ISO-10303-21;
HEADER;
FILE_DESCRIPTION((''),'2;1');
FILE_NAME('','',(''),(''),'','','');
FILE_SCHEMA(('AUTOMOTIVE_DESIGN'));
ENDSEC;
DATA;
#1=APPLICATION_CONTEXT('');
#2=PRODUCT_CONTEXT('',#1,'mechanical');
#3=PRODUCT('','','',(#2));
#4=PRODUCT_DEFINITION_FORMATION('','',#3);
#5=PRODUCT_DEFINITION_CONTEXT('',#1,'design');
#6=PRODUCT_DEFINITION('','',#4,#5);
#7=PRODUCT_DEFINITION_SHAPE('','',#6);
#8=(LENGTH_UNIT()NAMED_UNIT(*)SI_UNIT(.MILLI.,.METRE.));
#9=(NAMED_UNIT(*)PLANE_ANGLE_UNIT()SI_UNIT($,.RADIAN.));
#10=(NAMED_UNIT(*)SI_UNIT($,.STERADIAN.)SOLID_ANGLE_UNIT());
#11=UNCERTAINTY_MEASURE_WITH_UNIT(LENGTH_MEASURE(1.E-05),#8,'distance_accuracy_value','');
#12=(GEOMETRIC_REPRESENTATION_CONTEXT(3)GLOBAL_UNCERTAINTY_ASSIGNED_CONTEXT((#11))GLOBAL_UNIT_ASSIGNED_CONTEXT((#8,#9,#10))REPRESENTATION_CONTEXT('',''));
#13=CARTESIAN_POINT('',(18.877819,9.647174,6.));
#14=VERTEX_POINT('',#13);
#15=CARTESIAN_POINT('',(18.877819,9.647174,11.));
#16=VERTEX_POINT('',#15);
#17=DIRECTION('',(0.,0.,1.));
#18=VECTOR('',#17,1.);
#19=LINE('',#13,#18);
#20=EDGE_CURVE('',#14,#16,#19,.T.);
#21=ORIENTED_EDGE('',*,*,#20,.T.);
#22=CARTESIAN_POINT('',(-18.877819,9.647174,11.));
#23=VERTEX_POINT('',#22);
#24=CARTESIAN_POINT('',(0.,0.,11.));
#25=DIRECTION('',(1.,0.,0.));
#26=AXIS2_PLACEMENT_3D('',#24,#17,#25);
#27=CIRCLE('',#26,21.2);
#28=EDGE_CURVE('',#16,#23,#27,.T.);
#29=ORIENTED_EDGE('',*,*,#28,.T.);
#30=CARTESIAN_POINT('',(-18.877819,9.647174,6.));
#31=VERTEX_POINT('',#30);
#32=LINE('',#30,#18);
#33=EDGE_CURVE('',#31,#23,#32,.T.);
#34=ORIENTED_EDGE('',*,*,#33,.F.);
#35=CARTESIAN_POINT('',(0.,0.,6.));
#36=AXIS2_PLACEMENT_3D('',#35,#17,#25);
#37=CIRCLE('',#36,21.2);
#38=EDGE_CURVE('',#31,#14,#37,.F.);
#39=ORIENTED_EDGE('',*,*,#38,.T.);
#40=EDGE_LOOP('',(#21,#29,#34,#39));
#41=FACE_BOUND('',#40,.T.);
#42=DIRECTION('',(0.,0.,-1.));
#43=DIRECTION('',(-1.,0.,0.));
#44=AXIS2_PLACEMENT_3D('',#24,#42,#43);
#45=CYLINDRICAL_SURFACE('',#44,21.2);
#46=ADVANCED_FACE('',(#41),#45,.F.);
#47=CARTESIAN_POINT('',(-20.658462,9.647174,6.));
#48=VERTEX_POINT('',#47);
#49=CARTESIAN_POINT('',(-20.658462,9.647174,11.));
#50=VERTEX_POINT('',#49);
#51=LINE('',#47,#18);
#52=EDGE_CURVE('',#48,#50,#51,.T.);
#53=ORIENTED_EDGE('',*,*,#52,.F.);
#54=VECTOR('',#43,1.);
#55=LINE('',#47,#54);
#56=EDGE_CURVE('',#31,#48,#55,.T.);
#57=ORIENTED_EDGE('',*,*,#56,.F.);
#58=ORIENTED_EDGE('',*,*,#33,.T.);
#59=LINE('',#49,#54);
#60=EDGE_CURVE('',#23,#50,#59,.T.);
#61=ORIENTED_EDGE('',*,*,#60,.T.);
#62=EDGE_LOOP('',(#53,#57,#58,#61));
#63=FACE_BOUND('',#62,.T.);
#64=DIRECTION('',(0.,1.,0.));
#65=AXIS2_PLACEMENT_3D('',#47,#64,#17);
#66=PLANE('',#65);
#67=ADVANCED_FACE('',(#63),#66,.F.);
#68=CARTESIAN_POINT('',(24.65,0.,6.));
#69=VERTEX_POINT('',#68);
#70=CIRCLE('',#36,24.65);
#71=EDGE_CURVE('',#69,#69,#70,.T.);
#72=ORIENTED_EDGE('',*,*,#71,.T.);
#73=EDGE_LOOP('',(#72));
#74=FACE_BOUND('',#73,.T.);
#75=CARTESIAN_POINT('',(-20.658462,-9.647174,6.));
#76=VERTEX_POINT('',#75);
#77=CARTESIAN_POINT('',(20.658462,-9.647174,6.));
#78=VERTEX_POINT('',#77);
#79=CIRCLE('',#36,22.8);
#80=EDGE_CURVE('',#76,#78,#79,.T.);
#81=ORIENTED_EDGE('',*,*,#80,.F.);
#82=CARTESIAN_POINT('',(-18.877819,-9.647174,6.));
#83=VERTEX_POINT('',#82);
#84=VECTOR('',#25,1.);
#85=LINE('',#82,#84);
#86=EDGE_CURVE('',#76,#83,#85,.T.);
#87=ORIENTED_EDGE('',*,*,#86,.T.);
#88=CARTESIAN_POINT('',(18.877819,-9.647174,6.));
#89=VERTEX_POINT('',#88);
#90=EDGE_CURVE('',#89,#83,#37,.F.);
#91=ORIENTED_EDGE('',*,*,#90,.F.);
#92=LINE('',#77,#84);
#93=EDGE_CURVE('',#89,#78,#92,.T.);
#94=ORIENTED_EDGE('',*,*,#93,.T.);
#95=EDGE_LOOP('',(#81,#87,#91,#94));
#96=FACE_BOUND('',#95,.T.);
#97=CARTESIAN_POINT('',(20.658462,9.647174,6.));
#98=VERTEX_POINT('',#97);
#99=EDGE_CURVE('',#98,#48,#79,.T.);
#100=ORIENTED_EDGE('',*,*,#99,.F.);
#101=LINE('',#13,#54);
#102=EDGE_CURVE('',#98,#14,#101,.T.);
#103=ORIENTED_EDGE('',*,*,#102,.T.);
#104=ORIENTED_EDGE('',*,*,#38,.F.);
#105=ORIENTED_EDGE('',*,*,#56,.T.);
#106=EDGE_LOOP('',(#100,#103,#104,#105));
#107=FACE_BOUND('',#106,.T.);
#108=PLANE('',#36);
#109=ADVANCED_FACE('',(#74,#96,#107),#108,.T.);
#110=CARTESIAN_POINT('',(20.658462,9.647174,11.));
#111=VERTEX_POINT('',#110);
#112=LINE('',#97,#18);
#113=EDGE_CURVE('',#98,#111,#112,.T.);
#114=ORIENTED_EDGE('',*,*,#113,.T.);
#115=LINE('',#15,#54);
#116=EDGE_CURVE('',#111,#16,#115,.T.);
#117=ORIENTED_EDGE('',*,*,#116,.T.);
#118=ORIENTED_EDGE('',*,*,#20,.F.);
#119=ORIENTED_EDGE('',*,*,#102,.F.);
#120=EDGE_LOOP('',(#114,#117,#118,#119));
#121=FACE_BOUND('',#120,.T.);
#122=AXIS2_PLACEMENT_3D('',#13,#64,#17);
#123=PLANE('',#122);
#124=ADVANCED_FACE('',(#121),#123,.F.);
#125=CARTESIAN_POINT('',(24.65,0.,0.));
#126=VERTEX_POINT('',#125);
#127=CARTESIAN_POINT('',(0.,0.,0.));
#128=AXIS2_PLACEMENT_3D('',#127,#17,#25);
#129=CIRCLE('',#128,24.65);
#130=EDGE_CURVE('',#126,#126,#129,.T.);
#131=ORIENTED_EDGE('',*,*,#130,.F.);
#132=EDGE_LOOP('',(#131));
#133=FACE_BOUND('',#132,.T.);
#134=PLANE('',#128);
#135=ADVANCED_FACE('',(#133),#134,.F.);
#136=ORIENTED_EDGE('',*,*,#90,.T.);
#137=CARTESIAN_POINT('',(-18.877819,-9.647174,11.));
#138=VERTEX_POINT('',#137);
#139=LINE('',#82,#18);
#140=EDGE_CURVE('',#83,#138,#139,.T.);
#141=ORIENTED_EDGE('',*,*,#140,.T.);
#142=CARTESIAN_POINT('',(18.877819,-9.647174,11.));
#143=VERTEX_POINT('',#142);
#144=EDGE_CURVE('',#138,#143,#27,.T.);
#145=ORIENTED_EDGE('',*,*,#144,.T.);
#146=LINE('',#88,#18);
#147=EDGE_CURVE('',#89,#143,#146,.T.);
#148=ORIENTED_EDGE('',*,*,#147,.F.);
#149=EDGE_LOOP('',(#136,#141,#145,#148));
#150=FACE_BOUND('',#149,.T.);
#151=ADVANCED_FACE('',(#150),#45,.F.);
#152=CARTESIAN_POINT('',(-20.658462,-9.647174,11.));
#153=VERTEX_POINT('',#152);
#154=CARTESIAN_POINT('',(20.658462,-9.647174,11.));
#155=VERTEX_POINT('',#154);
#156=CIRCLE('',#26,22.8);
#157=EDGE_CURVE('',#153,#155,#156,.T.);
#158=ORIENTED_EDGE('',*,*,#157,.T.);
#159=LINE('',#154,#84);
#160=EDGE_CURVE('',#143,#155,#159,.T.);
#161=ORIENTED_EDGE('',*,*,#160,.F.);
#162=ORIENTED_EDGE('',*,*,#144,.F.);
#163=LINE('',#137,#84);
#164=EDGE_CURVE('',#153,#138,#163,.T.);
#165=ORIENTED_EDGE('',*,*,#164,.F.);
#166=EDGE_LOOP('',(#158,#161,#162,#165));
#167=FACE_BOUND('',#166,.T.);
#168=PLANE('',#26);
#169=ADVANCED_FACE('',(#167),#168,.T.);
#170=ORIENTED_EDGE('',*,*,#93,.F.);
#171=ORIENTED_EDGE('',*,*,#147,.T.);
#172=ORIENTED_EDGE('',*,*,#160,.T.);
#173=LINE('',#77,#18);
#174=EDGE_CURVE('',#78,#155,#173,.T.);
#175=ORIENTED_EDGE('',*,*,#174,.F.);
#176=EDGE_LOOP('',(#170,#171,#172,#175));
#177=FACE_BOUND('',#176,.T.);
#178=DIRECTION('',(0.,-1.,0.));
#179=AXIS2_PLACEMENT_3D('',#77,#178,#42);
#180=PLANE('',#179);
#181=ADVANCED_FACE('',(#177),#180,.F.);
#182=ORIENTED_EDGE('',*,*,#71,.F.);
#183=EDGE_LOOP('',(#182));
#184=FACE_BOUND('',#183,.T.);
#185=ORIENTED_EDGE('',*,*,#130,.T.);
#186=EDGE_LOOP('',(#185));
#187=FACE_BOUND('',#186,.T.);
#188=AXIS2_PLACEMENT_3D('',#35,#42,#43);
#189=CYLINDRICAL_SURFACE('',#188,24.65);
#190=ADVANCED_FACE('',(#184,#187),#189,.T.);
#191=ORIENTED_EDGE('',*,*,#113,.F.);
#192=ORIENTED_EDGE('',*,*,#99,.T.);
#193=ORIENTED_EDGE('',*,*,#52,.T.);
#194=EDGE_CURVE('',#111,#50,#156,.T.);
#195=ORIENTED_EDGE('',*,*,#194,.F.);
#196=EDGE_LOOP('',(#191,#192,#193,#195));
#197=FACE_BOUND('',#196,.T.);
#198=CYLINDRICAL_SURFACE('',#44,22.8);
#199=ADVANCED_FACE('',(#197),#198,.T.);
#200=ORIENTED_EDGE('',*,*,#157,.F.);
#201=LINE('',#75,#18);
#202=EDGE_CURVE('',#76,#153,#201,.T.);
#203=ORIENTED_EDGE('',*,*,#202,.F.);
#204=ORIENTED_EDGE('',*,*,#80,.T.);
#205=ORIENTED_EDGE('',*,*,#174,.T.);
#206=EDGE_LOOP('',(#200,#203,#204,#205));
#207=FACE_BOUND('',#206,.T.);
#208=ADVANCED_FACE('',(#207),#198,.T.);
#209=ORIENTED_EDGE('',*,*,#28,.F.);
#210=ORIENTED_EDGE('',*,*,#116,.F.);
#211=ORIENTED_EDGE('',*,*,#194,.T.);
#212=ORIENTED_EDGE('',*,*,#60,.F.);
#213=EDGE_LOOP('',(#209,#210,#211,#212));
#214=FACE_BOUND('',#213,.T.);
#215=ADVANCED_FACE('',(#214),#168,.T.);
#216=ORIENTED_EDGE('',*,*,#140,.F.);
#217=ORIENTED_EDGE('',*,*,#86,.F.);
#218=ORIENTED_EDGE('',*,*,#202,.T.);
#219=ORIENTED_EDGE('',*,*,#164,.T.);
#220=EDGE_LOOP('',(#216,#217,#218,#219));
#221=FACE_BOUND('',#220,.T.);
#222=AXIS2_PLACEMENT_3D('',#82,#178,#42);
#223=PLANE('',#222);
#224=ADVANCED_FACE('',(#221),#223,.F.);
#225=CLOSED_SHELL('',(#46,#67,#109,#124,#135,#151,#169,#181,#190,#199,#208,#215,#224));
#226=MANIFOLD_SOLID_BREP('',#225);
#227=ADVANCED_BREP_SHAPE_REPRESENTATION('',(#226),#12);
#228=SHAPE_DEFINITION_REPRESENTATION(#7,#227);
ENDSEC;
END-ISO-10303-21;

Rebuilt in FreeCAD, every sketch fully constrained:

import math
import FreeCAD as App
import Part
import Sketcher
from FreeCAD import Vector
Q = App.Units.Quantity

doc = App.newDocument("Part")
body = doc.addObject("PartDesign::Body", "Body")

# Sketch on XY plane
sketch1 = body.newObject("Sketcher::SketchObject", "Sketch")
sketch1.AttachmentSupport = (doc.getObject("XY_Plane"), [""])
sketch1.MapMode = "FlatFace"
sketch1.addGeometry(Part.Circle(Vector(0, 0, 0), Vector(0, 0, 1), 24.65), False)
sketch1.addConstraint([
    Sketcher.Constraint("Coincident", 0, 3, -1, 1),
    Sketcher.Constraint("Diameter", 0, Q("49.3 mm")),
])
pad1 = body.newObject("PartDesign::Pad", "Pad")
pad1.Profile = sketch1
pad1.Length = 6

# Sketch on XY plane
sketch2 = body.newObject("Sketcher::SketchObject", "Sketch001")
sketch2.AttachmentSupport = (doc.getObject("XY_Plane"), [""])
sketch2.MapMode = "FlatFace"
sketch2.AttachmentOffset = App.Placement(Vector(0, 0, 6), App.Rotation())
sketch2.addGeometry([
    Part.Circle(Vector(0, 0, 0), Vector(0, 0, 1), 22.8),
    Part.Circle(Vector(0, 0, 0), Vector(0, 0, 1), 21.2),
], False)
sketch2.addConstraint([
    Sketcher.Constraint("Coincident", 0, 3, -1, 1),
    Sketcher.Constraint("Coincident", 1, 3, -1, 1),
    Sketcher.Constraint("Diameter", 0, Q("45.6 mm")),
    Sketcher.Constraint("Diameter", 1, Q("42.4 mm")),
])
pad2 = body.newObject("PartDesign::Pad", "Pad001")
pad2.Profile = sketch2
pad2.Length = 5

# Sketch on XY plane
sketch3 = body.newObject("Sketcher::SketchObject", "Sketch002")
sketch3.AttachmentSupport = (doc.getObject("XY_Plane"), [""])
sketch3.MapMode = "FlatFace"
sketch3.AttachmentOffset = App.Placement(Vector(0, 0, 6), App.Rotation())
sketch3.addGeometry([
    Part.LineSegment(Vector(-18.877819, 9.647174, 0), Vector(-20.658462, 9.647174, 0)),  # 0
    Part.ArcOfCircle(Part.Circle(Vector(0, 0, 0), Vector(0, 0, 1), 22.8), math.radians(154.968172), math.radians(205.031828)),  # 1
    Part.LineSegment(Vector(-20.658462, -9.647174, 0), Vector(-18.877819, -9.647174, 0)),  # 2
    Part.ArcOfCircle(Part.Circle(Vector(0, 0, 0), Vector(0, 0, 1), 21.2), math.radians(152.931504), math.radians(207.068496)),  # 3
    Part.LineSegment(Vector(18.877819, -9.647174, 0), Vector(20.658462, -9.647174, 0)),  # 4
    Part.ArcOfCircle(Part.Circle(Vector(0, 0, 0), Vector(0, 0, 1), 22.8), math.radians(-25.031828), math.radians(25.031828)),  # 5
    Part.LineSegment(Vector(20.658462, 9.647174, 0), Vector(18.877819, 9.647174, 0)),  # 6
    Part.ArcOfCircle(Part.Circle(Vector(0, 0, 0), Vector(0, 0, 1), 21.2), math.radians(-27.068496), math.radians(27.068496)),  # 7
], False)
sketch3.addConstraint([
    Sketcher.Constraint("Coincident", 0, 2, 1, 1),
    Sketcher.Constraint("Coincident", 1, 2, 2, 1),
    Sketcher.Constraint("Coincident", 2, 2, 3, 2),
    Sketcher.Constraint("Coincident", 3, 1, 0, 1),
    Sketcher.Constraint("Coincident", 4, 2, 5, 1),
    Sketcher.Constraint("Coincident", 5, 2, 6, 1),
    Sketcher.Constraint("Coincident", 6, 2, 7, 2),
    Sketcher.Constraint("Coincident", 7, 1, 4, 1),
    Sketcher.Constraint("Horizontal", 0),
    Sketcher.Constraint("Horizontal", 2),
    Sketcher.Constraint("Horizontal", 4),
    Sketcher.Constraint("Horizontal", 6),
    Sketcher.Constraint("Coincident", 1, 3, -1, 1),
    Sketcher.Constraint("Coincident", 3, 3, -1, 1),
    Sketcher.Constraint("Coincident", 5, 3, -1, 1),
    Sketcher.Constraint("Coincident", 7, 3, -1, 1),
    Sketcher.Constraint("Equal", 1, 5),
    Sketcher.Constraint("Equal", 3, 7),
    Sketcher.Constraint("Horizontal", 2, 2, 4, 2),
    Sketcher.Constraint("Horizontal", 3, 1, 5, 2),
    Sketcher.Constraint("Vertical", 0, 2, 1, 2),
    Sketcher.Constraint("Radius", 1, Q("22.8 mm")),
    Sketcher.Constraint("Radius", 3, Q("21.2 mm")),
    Sketcher.Constraint("DistanceX", 0, 2, 0, 1, Q("1.780643 mm")),
])
pocket1 = body.newObject("PartDesign::Pocket", "Pocket")
pocket1.Profile = sketch3
pocket1.Length = 5
pocket1.Reversed = True

doc.recompute()
